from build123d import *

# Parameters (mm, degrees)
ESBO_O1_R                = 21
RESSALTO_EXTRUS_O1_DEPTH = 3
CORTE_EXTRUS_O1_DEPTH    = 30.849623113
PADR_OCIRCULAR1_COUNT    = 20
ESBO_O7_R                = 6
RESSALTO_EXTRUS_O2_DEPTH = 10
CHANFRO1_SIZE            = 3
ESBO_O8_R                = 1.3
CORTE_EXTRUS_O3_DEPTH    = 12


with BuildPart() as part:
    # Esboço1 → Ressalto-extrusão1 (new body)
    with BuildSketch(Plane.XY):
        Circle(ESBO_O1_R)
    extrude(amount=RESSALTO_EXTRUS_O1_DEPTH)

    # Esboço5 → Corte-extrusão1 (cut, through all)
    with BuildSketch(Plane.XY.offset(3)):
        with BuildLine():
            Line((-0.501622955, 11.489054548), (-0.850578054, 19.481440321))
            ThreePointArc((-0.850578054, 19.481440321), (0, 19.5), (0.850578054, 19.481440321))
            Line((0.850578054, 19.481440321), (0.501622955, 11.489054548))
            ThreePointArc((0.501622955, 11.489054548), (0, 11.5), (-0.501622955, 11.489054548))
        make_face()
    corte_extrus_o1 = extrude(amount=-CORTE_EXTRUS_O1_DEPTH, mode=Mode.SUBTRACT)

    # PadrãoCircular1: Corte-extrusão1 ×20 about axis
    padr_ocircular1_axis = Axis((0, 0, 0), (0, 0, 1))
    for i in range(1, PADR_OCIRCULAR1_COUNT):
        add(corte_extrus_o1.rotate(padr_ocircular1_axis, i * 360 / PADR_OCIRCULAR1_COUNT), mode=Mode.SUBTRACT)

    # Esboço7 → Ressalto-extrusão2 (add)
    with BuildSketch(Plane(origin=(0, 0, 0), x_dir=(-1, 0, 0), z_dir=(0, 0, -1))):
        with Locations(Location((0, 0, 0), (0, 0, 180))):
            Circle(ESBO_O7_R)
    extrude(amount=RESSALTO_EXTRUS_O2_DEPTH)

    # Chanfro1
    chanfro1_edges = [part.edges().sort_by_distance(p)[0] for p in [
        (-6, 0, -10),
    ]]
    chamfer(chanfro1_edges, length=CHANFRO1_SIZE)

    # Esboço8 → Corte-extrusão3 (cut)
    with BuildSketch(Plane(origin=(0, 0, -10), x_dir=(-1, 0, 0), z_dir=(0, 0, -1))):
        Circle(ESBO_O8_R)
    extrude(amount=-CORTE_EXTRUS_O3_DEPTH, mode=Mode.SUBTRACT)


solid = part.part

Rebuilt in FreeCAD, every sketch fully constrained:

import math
import FreeCAD as App
import Part
import Sketcher
from FreeCAD import Vector
Q = App.Units.Quantity


def edges_at(feature, points):
    """Names of the edges that pass closest to the given points."""
    edges = feature.Shape.Edges
    near = lambda p: min(range(len(edges)), key=lambda i: edges[i].distToShape(Part.Vertex(*p))[0])
    return sorted({f"Edge{near(p) + 1}" for p in points})

doc = App.newDocument("Part")
body = doc.addObject("PartDesign::Body", "Body")

sketch1 = body.newObject("Sketcher::SketchObject", "Sketch")
sketch1.AttachmentSupport = (doc.getObject("XY_Plane"), [""])
sketch1.MapMode = "FlatFace"
sketch1.addGeometry(Part.Circle(Vector(0, 0, 0), Vector(0, 0, 1), 21), False)
sketch1.addConstraint([
    Sketcher.Constraint("Coincident", 0, 3, -1, 1),
    Sketcher.Constraint("Diameter", 0, Q("42 mm")),
])
pad1 = body.newObject("PartDesign::Pad", "Pad")
pad1.Profile = sketch1
pad1.Length = 3

sketch2 = body.newObject("Sketcher::SketchObject", "Sketch001")
sketch2.AttachmentSupport = (doc.getObject("XY_Plane"), [""])
sketch2.MapMode = "FlatFace"
sketch2.AttachmentOffset = App.Placement(Vector(0, 0, 3), App.Rotation())
sketch2.addGeometry([
    Part.LineSegment(Vector(-0.9, 19.5, 0), Vector(-0.5, 11.5, 0)),
    Part.ArcOfCircle(Part.Circle(Vector(0, 0, 0), Vector(0, 0, 1), 11.5), math.radians(87.5), math.radians(92.5)),
    Part.LineSegment(Vector(0.5, 11.5, 0), Vector(0.9, 19.5, 0)),
    Part.ArcOfCircle(Part.Circle(Vector(0, 0, 0), Vector(0, 0, 1), 19.5), math.radians(87.5), math.radians(92.5)),
], False)
sketch2.addConstraint([
    Sketcher.Constraint("Coincident", 0, 2, 1, 2),
    Sketcher.Constraint("Coincident", 1, 1, 2, 1),
    Sketcher.Constraint("Coincident", 2, 2, 3, 1),
    Sketcher.Constraint("Coincident", 3, 2, 0, 1),
    Sketcher.Constraint("Coincident", 1, 3, -1, 1),
    Sketcher.Constraint("Coincident", 3, 3, -1, 1),
    Sketcher.Constraint("Horizontal", 0, 2, 1, 1),
    Sketcher.Constraint("Horizontal", 2, 2, 3, 2),
    Sketcher.Constraint("Radius", 1, Q("11.5 mm")),
    Sketcher.Constraint("Radius", 3, Q("19.5 mm")),
    Sketcher.Constraint("Angle", 0, Q("-87.5 deg")),
    Sketcher.Constraint("DistanceX", 0, 2, 2, 2, Q("1.352201 mm")),
])
pocket1 = body.newObject("PartDesign::Pocket", "Pocket")
pocket1.Profile = sketch2
pocket1.Type = "ThroughAll"
doc.recompute()

polarpattern = body.newObject("PartDesign::PolarPattern", "PolarPattern")
polarpattern.Originals = [pocket1]
polarpattern.Axis = (doc.getObject("Z_Axis"), [""])
polarpattern.Angle = 360
polarpattern.Occurrences = 20
body.Tip = polarpattern

sketch3 = body.newObject("Sketcher::SketchObject", "Sketch002")
sketch3.AttachmentSupport = (doc.getObject("XY_Plane"), [""])
sketch3.MapMode = "FlatFace"
sketch3.addGeometry(Part.Circle(Vector(0, 0, 0), Vector(0, 0, 1), 6), False)
sketch3.addConstraint([
    Sketcher.Constraint("Coincident", 0, 3, -1, 1),
    Sketcher.Constraint("Diameter", 0, Q("12 mm")),
])
pad2 = body.newObject("PartDesign::Pad", "Pad001")
pad2.Profile = sketch3
pad2.Length = 10
pad2.Reversed = True
doc.recompute()

chamfer = body.newObject("PartDesign::Chamfer", "Chamfer")
chamfer.Base = (pad2, edges_at(pad2, [(-6, 0, -10)]))
chamfer.Size = 3

sketch4 = body.newObject("Sketcher::SketchObject", "Sketch003")
sketch4.AttachmentSupport = (doc.getObject("XY_Plane"), [""])
sketch4.MapMode = "FlatFace"
sketch4.AttachmentOffset = App.Placement(Vector(0, 0, -10), App.Rotation())
sketch4.addGeometry(Part.Circle(Vector(0, 0, 0), Vector(0, 0, 1), 1.3), False)
sketch4.addConstraint([
    Sketcher.Constraint("Coincident", 0, 3, -1, 1),
    Sketcher.Constraint("Diameter", 0, Q("2.6 mm")),
])
pocket2 = body.newObject("PartDesign::Pocket", "Pocket001")
pocket2.Profile = sketch4
pocket2.Length = 12
pocket2.Reversed = True

doc.recompute()
